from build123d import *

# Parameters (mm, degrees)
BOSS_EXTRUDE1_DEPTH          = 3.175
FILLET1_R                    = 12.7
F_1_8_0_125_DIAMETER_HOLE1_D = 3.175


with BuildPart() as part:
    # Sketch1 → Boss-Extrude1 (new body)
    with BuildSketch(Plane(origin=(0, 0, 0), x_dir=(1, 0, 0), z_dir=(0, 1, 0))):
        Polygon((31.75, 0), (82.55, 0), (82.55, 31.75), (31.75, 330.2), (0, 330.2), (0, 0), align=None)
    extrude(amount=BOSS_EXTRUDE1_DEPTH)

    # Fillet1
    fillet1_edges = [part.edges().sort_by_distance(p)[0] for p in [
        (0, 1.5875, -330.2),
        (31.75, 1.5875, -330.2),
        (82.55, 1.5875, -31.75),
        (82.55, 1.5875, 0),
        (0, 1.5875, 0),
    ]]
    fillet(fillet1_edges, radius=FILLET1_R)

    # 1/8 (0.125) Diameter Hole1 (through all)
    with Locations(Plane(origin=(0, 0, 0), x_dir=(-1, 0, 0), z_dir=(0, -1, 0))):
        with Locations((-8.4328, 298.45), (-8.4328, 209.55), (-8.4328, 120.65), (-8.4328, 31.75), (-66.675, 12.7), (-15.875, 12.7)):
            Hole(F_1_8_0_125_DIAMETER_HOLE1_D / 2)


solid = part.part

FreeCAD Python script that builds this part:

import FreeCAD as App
import Part
import Sketcher

V = App.Vector
Q = App.Units.Quantity


def edges_at(feature, points):
    """Names of the edges that pass closest to the given points."""
    edges = feature.Shape.Edges
    near = lambda p: min(range(len(edges)), key=lambda i: edges[i].distToShape(Part.Vertex(*p))[0])
    return sorted({f"Edge{near(p) + 1}" for p in points})


def add_polygon(sketch, points):
    """Adds a closed chain of lines whose ends are joined by coincident constraints."""
    first, n = sketch.GeometryCount, len(points)
    for a, b in zip(points, points[1:] + points[:1]):
        sketch.addGeometry(Part.LineSegment(App.Vector(*a, 0), App.Vector(*b, 0)), False)
    for i in range(n):
        sketch.addConstraint(Sketcher.Constraint("Coincident", first + i, 2, first + (i + 1) % n, 1))

doc = App.newDocument("Part")
params = doc.addObject("Spreadsheet::Sheet", "Params")
for row, (alias, value) in enumerate([
    ("sketch1_height", "13 in"),
    ("sketch1_width", "1.25 in"),
    ("pad1_length", "0.125 in"),
    ("fillet_radius", "0.5 in"),
    ("sketch2_diameter", "0.125 in"),
    ("hole_diameter", "0.125 in"),
], start=1):
    params.set(f"A{row}", alias)
    params.set(f"B{row}", "=" + value)
    params.setAlias(f"B{row}", alias)

body = doc.addObject("PartDesign::Body", "Body")

sketch1 = body.newObject("Sketcher::SketchObject", "Sketch")
sketch1.AttachmentSupport = (doc.getObject("XZ_Plane"), [""])
sketch1.MapMode = "FlatFace"
add_polygon(sketch1, [(83, 0), (83, -32), (32, -330), (0, -330), (0, 0)])
sketch1.addConstraint(Sketcher.Constraint("Vertical", 0))
sketch1.addConstraint(Sketcher.Constraint("Horizontal", 2))
sketch1.addConstraint(Sketcher.Constraint("Vertical", 3))
sketch1.addConstraint(Sketcher.Constraint("Horizontal", 4))
sketch1.addConstraint(Sketcher.Constraint("Coincident", 3, 2, -1, 1))
sketch1.addConstraint(Sketcher.Constraint("Equal", 2, 0))
sketch1.addConstraint(Sketcher.Constraint("DistanceY", 3, 1, 3, 2, Q("13 in")))
sketch1.addConstraint(Sketcher.Constraint("DistanceX", 1, 2, 0, 2, Q("2 in")))
sketch1.addConstraint(Sketcher.Constraint("DistanceX", 2, 2, 2, 1, Q("1.25 in")))
sketch1.setExpression("Constraints[11]", "Params.sketch1_height")
sketch1.setExpression("Constraints[13]", "Params.sketch1_width")
pad1 = body.newObject("PartDesign::Pad", "Pad")
pad1.Profile = sketch1
pad1.setExpression("Length", "Params.pad1_length")
pad1.Reversed = True
doc.recompute()

fillet = body.newObject("PartDesign::Fillet", "Fillet")
fillet.Base = (pad1, edges_at(pad1, [
    (0, 1.587, -330.2),
    (31.75, 1.587, -330.2),
    (82.55, 1.587, -31.75),
    (82.55, 1.587, 0),
    (0, 1.587, 0),
]))
fillet.setExpression("Radius", "Params.fillet_radius")

sketch2 = body.newObject("Sketcher::SketchObject", "Sketch001")
sketch2.AttachmentSupport = (doc.getObject("XZ_Plane"), [""])
sketch2.MapMode = "FlatFace"
sketch2.addGeometry(Part.Circle(V(8.4, -298.4, 0), V(0, 0, 1), 1.6), False)
sketch2.addGeometry(Part.Circle(V(8.4, -209.6, 0), V(0, 0, 1), 1.6), False)
sketch2.addGeometry(Part.Circle(V(8.4, -120.7, 0), V(0, 0, 1), 1.6), False)
sketch2.addGeometry(Part.Circle(V(8.4, -31.8, 0), V(0, 0, 1), 1.6), False)
sketch2.addGeometry(Part.Circle(V(66.7, -12.7, 0), V(0, 0, 1), 1.6), False)
sketch2.addGeometry(Part.Circle(V(15.9, -12.7, 0), V(0, 0, 1), 1.6), False)
sketch2.addConstraint(Sketcher.Constraint("Equal", 0, 1))
sketch2.addConstraint(Sketcher.Constraint("Equal", 1, 2))
sketch2.addConstraint(Sketcher.Constraint("Equal", 2, 3))
sketch2.addConstraint(Sketcher.Constraint("Equal", 3, 4))
sketch2.addConstraint(Sketcher.Constraint("Equal", 4, 5))
sketch2.addConstraint(Sketcher.Constraint("Horizontal", 4, 3, 5, 3))
sketch2.addConstraint(Sketcher.Constraint("Vertical", 0, 3, 1, 3))
sketch2.addConstraint(Sketcher.Constraint("Vertical", 1, 3, 2, 3))
sketch2.addConstraint(Sketcher.Constraint("Vertical", 2, 3, 3, 3))
sketch2.addConstraint(Sketcher.Constraint("Diameter", 0, Q("0.125 in")))
sketch2.addConstraint(Sketcher.Constraint("DistanceY", 0, 3, 2, 3, Q("7 in")))
sketch2.addConstraint(Sketcher.Constraint("DistanceY", 1, 3, 3, 3, Q("7 in")))
sketch2.addConstraint(Sketcher.Constraint("DistanceX", 5, 3, 4, 3, Q("2 in")))
sketch2.addConstraint(Sketcher.Constraint("DistanceY", 4, 3, -1, 1, Q("0.5 in")))
sketch2.addConstraint(Sketcher.Constraint("DistanceY", 0, 3, 1, 3, Q("3.5 in")))
sketch2.addConstraint(Sketcher.Constraint("DistanceY", 0, 3, -1, 1, Q("11.75 in")))
sketch2.addConstraint(Sketcher.Constraint("DistanceX", -1, 1, 0, 3, Q("0.332 in")))
sketch2.addConstraint(Sketcher.Constraint("DistanceX", -1, 1, 4, 3, Q("2.625 in")))
sketch2.setExpression("Constraints[9]", "Params.sketch2_diameter")
doc.recompute()
hole = body.newObject("PartDesign::Hole", "Hole")
hole.Profile = sketch2
hole.ThreadType = "None"
hole.setExpression("Diameter", "Params.hole_diameter")
hole.DepthType = "ThroughAll"

doc.recompute()
